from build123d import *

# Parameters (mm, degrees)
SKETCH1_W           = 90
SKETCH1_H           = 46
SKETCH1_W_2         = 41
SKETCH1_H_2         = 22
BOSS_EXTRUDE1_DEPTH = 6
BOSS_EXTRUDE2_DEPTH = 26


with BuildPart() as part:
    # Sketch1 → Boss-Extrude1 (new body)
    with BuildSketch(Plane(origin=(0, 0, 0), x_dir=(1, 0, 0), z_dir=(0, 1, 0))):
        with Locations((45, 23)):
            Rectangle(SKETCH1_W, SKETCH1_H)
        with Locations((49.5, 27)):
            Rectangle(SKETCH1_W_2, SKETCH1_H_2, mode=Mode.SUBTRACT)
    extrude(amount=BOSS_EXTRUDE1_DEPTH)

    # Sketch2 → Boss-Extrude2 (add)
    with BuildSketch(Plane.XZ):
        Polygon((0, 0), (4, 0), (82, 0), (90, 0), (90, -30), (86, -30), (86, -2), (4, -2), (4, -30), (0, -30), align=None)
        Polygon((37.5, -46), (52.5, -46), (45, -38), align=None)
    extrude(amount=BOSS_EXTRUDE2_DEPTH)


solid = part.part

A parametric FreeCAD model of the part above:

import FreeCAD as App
import Part
import Sketcher

doc = App.newDocument("Part")
body = doc.addObject("PartDesign::Body", "Body")

# Sketch on XZ plane
sketch1 = body.newObject("Sketcher::SketchObject", "Sketch")
sketch1.AttachmentSupport = (doc.getObject("XZ_Plane"), [""])
sketch1.MapMode = "FlatFace"
sketch1.addGeometry([
    Part.LineSegment(App.Vector(0, -46, 0), App.Vector(0, 0, 0)),  # 0
    Part.LineSegment(App.Vector(0, 0, 0), App.Vector(90, 0, 0)),  # 1
    Part.LineSegment(App.Vector(90, 0, 0), App.Vector(90, -46, 0)),  # 2
    Part.LineSegment(App.Vector(90, -46, 0), App.Vector(0, -46, 0)),  # 3
    Part.LineSegment(App.Vector(70, -16, 0), App.Vector(29, -16, 0)),  # 4
    Part.LineSegment(App.Vector(29, -16, 0), App.Vector(29, -38, 0)),  # 5
    Part.LineSegment(App.Vector(29, -38, 0), App.Vector(70, -38, 0)),  # 6
    Part.LineSegment(App.Vector(70, -38, 0), App.Vector(70, -16, 0)),  # 7
], False)
sketch1.addConstraint([
    Sketcher.Constraint("Coincident", 0, 2, 1, 1),
    Sketcher.Constraint("Coincident", 1, 2, 2, 1),
    Sketcher.Constraint("Coincident", 2, 2, 3, 1),
    Sketcher.Constraint("Coincident", 3, 2, 0, 1),
    Sketcher.Constraint("Coincident", 4, 2, 5, 1),
    Sketcher.Constraint("Coincident", 5, 2, 6, 1),
    Sketcher.Constraint("Coincident", 6, 2, 7, 1),
    Sketcher.Constraint("Coincident", 7, 2, 4, 1),
    Sketcher.Constraint("Vertical", 0),
    Sketcher.Constraint("Horizontal", 1),
    Sketcher.Constraint("Vertical", 2),
    Sketcher.Constraint("Horizontal", 3),
    Sketcher.Constraint("Horizontal", 4),
    Sketcher.Constraint("Vertical", 5),
    Sketcher.Constraint("Horizontal", 6),
    Sketcher.Constraint("Vertical", 7),
    Sketcher.Constraint("Coincident", 0, 2, -1, 1),
    Sketcher.Constraint("DistanceX", 1, 1, 1, 2, 90.0),
    Sketcher.Constraint("DistanceX", 4, 2, 4, 1, 41.0),
    Sketcher.Constraint("DistanceY", 0, 1, 0, 2, 46.0),
    Sketcher.Constraint("DistanceY", 5, 2, 5, 1, 22.0),
    Sketcher.Constraint("DistanceX", -1, 1, 4, 2, 29.0),
    Sketcher.Constraint("DistanceY", 4, 2, -1, 1, 16.0),
])
pad1 = body.newObject("PartDesign::Pad", "Pad")
pad1.Profile = sketch1
pad1.Length = 6
pad1.Reversed = True

# Sketch on XZ plane
sketch2 = body.newObject("Sketcher::SketchObject", "Sketch001")
sketch2.AttachmentSupport = (doc.getObject("XZ_Plane"), [""])
sketch2.MapMode = "FlatFace"
sketch2.addGeometry([
    Part.LineSegment(App.Vector(90, 0, 0), App.Vector(0, 0, 0)),  # 0
    Part.LineSegment(App.Vector(0, 0, 0), App.Vector(0, -30, 0)),  # 1
    Part.LineSegment(App.Vector(0, -30, 0), App.Vector(4, -30, 0)),  # 2
    Part.LineSegment(App.Vector(4, -30, 0), App.Vector(4, -2, 0)),  # 3
    Part.LineSegment(App.Vector(4, -2, 0), App.Vector(86, -2, 0)),  # 4
    Part.LineSegment(App.Vector(86, -2, 0), App.Vector(86, -30, 0)),  # 5
    Part.LineSegment(App.Vector(86, -30, 0), App.Vector(90, -30, 0)),  # 6
    Part.LineSegment(App.Vector(90, -30, 0), App.Vector(90, 0, 0)),  # 7
    Part.LineSegment(App.Vector(37.5, -46, 0), App.Vector(52.5, -46, 0)),  # 8
    Part.LineSegment(App.Vector(52.5, -46, 0), App.Vector(45, -38, 0)),  # 9
    Part.LineSegment(App.Vector(45, -38, 0), App.Vector(37.5, -46, 0)),  # 10
], False)
sketch2.addConstraint([
    Sketcher.Constraint("Coincident", 0, 2, 1, 1),
    Sketcher.Constraint("Coincident", 1, 2, 2, 1),
    Sketcher.Constraint("Coincident", 2, 2, 3, 1),
    Sketcher.Constraint("Coincident", 3, 2, 4, 1),
    Sketcher.Constraint("Coincident", 4, 2, 5, 1),
    Sketcher.Constraint("Coincident", 5, 2, 6, 1),
    Sketcher.Constraint("Coincident", 6, 2, 7, 1),
    Sketcher.Constraint("Coincident", 7, 2, 0, 1),
    Sketcher.Constraint("Coincident", 8, 2, 9, 1),
    Sketcher.Constraint("Coincident", 9, 2, 10, 1),
    Sketcher.Constraint("Coincident", 10, 2, 8, 1),
    Sketcher.Constraint("Horizontal", 0),
    Sketcher.Constraint("Vertical", 1),
    Sketcher.Constraint("Horizontal", 2),
    Sketcher.Constraint("Vertical", 3),
    Sketcher.Constraint("Horizontal", 4),
    Sketcher.Constraint("Vertical", 5),
    Sketcher.Constraint("Horizontal", 6),
    Sketcher.Constraint("Vertical", 7),
    Sketcher.Constraint("Horizontal", 8),
    Sketcher.Constraint("Coincident", 0, 2, -1, 1),
    Sketcher.Constraint("Horizontal", 2, 2, 5, 2),
    Sketcher.Constraint("Equal", 2, 6),
    Sketcher.Constraint("Equal", 9, 10),
    Sketcher.Constraint("DistanceX", 0, 2, 0, 1, 90.0),
    Sketcher.Constraint("DistanceX", 2, 1, 2, 2, 4.0),
    Sketcher.Constraint("DistanceX", 8, 1, 8, 2, 15.0),
    Sketcher.Constraint("DistanceY", 1, 2, 1, 1, 30.0),
    Sketcher.Constraint("DistanceY", 3, 1, 3, 2, 28.0),
    Sketcher.Constraint("DistanceY", 8, 2, -1, 1, 46.0),
    Sketcher.Constraint("DistanceX", -1, 1, 9, 2, 45.0),
    Sketcher.Constraint("DistanceY", 9, 2, -1, 1, 38.0),
])
pad2 = body.newObject("PartDesign::Pad", "Pad001")
pad2.Profile = sketch2
pad2.Length = 26

doc.recompute()
